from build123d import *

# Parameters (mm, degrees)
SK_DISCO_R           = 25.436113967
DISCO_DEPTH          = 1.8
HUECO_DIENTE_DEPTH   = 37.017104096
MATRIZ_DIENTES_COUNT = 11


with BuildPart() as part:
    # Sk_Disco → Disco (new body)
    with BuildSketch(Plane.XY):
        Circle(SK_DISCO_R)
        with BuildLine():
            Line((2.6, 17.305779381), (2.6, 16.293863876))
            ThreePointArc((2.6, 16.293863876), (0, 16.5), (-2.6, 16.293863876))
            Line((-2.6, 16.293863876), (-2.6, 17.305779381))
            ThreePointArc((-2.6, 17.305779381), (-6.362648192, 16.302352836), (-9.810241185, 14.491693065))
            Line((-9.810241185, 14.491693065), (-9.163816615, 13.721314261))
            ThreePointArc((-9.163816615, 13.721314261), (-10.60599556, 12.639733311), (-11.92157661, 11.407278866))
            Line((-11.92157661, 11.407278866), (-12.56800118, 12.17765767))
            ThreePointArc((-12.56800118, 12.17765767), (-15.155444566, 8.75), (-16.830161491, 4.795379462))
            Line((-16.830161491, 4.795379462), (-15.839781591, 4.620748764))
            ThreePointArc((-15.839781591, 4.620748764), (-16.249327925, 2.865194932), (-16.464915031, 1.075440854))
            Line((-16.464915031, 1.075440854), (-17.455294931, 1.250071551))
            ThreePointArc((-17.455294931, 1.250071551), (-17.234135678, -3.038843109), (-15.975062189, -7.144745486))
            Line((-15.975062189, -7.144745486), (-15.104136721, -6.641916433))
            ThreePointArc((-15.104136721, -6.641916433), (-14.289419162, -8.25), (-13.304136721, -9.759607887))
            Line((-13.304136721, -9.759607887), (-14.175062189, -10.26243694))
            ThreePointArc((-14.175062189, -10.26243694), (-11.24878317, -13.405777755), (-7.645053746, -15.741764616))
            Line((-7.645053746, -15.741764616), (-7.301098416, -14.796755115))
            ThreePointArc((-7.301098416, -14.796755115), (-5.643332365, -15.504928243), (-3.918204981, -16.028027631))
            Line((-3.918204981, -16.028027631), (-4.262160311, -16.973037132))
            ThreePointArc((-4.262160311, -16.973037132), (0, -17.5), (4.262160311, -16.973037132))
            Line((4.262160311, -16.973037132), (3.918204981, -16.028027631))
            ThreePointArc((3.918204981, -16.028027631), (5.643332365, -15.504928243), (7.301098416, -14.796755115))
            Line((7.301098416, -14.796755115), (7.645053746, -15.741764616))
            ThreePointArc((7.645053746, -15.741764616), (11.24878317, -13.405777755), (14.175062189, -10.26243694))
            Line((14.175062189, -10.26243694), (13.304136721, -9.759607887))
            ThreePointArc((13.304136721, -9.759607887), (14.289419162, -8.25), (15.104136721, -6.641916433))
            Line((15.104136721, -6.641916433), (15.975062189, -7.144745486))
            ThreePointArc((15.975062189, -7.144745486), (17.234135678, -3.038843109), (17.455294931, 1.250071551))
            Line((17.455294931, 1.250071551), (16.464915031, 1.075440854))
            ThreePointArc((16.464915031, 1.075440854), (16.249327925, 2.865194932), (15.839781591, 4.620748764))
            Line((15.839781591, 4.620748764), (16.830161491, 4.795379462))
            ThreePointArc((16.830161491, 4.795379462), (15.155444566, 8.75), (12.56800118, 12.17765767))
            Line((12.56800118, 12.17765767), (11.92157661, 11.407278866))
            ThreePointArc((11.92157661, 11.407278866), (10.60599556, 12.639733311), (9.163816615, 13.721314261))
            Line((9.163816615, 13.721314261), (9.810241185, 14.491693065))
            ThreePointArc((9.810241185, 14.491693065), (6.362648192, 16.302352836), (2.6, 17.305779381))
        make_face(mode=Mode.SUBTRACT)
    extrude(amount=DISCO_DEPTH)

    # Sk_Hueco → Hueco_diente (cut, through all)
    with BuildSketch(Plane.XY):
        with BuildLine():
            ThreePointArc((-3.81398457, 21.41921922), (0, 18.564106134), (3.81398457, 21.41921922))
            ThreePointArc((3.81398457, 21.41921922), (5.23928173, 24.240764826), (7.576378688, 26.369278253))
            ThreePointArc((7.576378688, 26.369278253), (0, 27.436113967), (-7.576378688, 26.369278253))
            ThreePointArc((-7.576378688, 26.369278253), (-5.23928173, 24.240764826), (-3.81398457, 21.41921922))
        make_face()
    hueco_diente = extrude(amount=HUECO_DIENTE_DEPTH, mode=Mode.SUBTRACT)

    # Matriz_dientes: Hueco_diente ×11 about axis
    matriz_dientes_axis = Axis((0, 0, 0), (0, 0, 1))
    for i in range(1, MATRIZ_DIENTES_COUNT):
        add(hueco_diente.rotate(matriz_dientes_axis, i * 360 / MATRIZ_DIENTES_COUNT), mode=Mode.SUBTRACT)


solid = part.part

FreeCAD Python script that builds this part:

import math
import FreeCAD as App
import Part
import Sketcher

V = App.Vector
Q = App.Units.Quantity

doc = App.newDocument("Part")
params = doc.addObject("Spreadsheet::Sheet", "Params")
for row, (alias, value) in enumerate([
    ("sketch1_radius", "17.5 mm"),
    ("sketch1_radius2", "16.5 mm"),
    ("pad1_length", "1.8 mm"),
], start=1):
    params.set(f"A{row}", alias)
    params.set(f"B{row}", "=" + value)
    params.setAlias(f"B{row}", alias)

body = doc.addObject("PartDesign::Body", "Body")

# Sketch on XY plane
sketch1 = body.newObject("Sketcher::SketchObject", "Sketch")
sketch1.AttachmentSupport = (doc.getObject("XY_Plane"), [""])
sketch1.MapMode = "FlatFace"
sketch1.addGeometry(Part.Circle(V(0, 0, 0), V(0, 0, 1), 25.4), False)
sketch1.addGeometry(Part.LineSegment(V(2.6, 16.3, 0), V(2.6, 17.3, 0)), False)
sketch1.addGeometry(Part.ArcOfCircle(Part.Circle(V(0, 0, 0), V(0, 0, 1), 17.5), math.radians(56), math.radians(81)), False)
sketch1.addGeometry(Part.LineSegment(V(9.8, 14.5, 0), V(9.2, 13.7, 0)), False)
sketch1.addGeometry(Part.ArcOfCircle(Part.Circle(V(0, 0, 0), V(0, 0, 1), 16.5), math.radians(43.74), math.radians(56.26)), False)
sketch1.addGeometry(Part.LineSegment(V(11.9, 11.4, 0), V(12.6, 12.2, 0)), False)
sketch1.addGeometry(Part.ArcOfCircle(Part.Circle(V(0, 0, 0), V(0, 0, 1), 17.5), math.radians(16), math.radians(44)), False)
sketch1.addGeometry(Part.LineSegment(V(16.8, 4.8, 0), V(15.8, 4.6, 0)), False)
sketch1.addGeometry(Part.ArcOfCircle(Part.Circle(V(0, 0, 0), V(0, 0, 1), 16.5), math.radians(3.74), math.radians(16.26)), False)
sketch1.addGeometry(Part.LineSegment(V(16.5, 1.1, 0), V(17.5, 1.3, 0)), False)
sketch1.addGeometry(Part.ArcOfCircle(Part.Circle(V(0, 0, 0), V(0, 0, 1), 17.5), math.radians(-24), math.radians(4)), False)
sketch1.addGeometry(Part.LineSegment(V(16, -7.1, 0), V(15.1, -6.6, 0)), False)
sketch1.addGeometry(Part.ArcOfCircle(Part.Circle(V(0, 0, 0), V(0, 0, 1), 16.5), math.radians(-36.26), math.radians(-23.74)), False)
sketch1.addGeometry(Part.LineSegment(V(13.3, -9.8, 0), V(14.2, -10.3, 0)), False)
sketch1.addGeometry(Part.ArcOfCircle(Part.Circle(V(0, 0, 0), V(0, 0, 1), 17.5), math.radians(-64), math.radians(-36)), False)
sketch1.addGeometry(Part.LineSegment(V(7.6, -15.7, 0), V(7.3, -14.8, 0)), False)
sketch1.addGeometry(Part.ArcOfCircle(Part.Circle(V(0, 0, 0), V(0, 0, 1), 16.5), math.radians(-76.26), math.radians(-63.74)), False)
sketch1.addGeometry(Part.LineSegment(V(3.9, -16, 0), V(4.3, -17, 0)), False)
sketch1.addGeometry(Part.ArcOfCircle(Part.Circle(V(0, 0, 0), V(0, 0, 1), 17.5), math.radians(-104), math.radians(-76)), False)
sketch1.addGeometry(Part.LineSegment(V(-4.3, -17, 0), V(-3.9, -16, 0)), False)
sketch1.addGeometry(Part.ArcOfCircle(Part.Circle(V(0, 0, 0), V(0, 0, 1), 16.5), math.radians(-116.26), math.radians(-103.74)), False)
sketch1.addGeometry(Part.LineSegment(V(-7.3, -14.8, 0), V(-7.6, -15.7, 0)), False)
sketch1.addGeometry(Part.ArcOfCircle(Part.Circle(V(0, 0, 0), V(0, 0, 1), 17.5), math.radians(-144), math.radians(-116)), False)
sketch1.addGeometry(Part.LineSegment(V(-14.2, -10.3, 0), V(-13.3, -9.8, 0)), False)
sketch1.addGeometry(Part.ArcOfCircle(Part.Circle(V(0, 0, 0), V(0, 0, 1), 16.5), math.radians(-156.26), math.radians(-143.74)), False)
sketch1.addGeometry(Part.LineSegment(V(-15.1, -6.6, 0), V(-16, -7.1, 0)), False)
sketch1.addGeometry(Part.ArcOfCircle(Part.Circle(V(0, 0, 0), V(0, 0, 1), 17.5), math.radians(176), math.radians(204)), False)
sketch1.addGeometry(Part.LineSegment(V(-17.5, 1.3, 0), V(-16.5, 1.1, 0)), False)
sketch1.addGeometry(Part.ArcOfCircle(Part.Circle(V(0, 0, 0), V(0, 0, 1), 16.5), math.radians(163.74), math.radians(176.26)), False)
sketch1.addGeometry(Part.LineSegment(V(-15.8, 4.6, 0), V(-16.8, 4.8, 0)), False)
sketch1.addGeometry(Part.ArcOfCircle(Part.Circle(V(0, 0, 0), V(0, 0, 1), 17.5), math.radians(136), math.radians(164)), False)
sketch1.addGeometry(Part.LineSegment(V(-12.6, 12.2, 0), V(-11.9, 11.4, 0)), False)
sketch1.addGeometry(Part.ArcOfCircle(Part.Circle(V(0, 0, 0), V(0, 0, 1), 16.5), math.radians(123.74), math.radians(136.26)), False)
sketch1.addGeometry(Part.LineSegment(V(-9.2, 13.7, 0), V(-9.8, 14.5, 0)), False)
sketch1.addGeometry(Part.ArcOfCircle(Part.Circle(V(0, 0, 0), V(0, 0, 1), 17.5), math.radians(99), math.radians(124)), False)
sketch1.addGeometry(Part.LineSegment(V(-2.6, 17.3, 0), V(-2.6, 16.3, 0)), False)
sketch1.addGeometry(Part.ArcOfCircle(Part.Circle(V(0, 0, 0), V(0, 0, 1), 16.5), math.radians(80.93), math.radians(99.07)), False)
sketch1.addConstraint(Sketcher.Constraint("Coincident", 1, 2, 2, 2))
sketch1.addConstraint(Sketcher.Constraint("Coincident", 2, 1, 3, 1))
sketch1.addConstraint(Sketcher.Constraint("Coincident", 3, 2, 4, 2))
sketch1.addConstraint(Sketcher.Constraint("Coincident", 4, 1, 5, 1))
sketch1.addConstraint(Sketcher.Constraint("Coincident", 5, 2, 6, 2))
sketch1.addConstraint(Sketcher.Constraint("Coincident", 6, 1, 7, 1))
sketch1.addConstraint(Sketcher.Constraint("Coincident", 7, 2, 8, 2))
sketch1.addConstraint(Sketcher.Constraint("Coincident", 8, 1, 9, 1))
sketch1.addConstraint(Sketcher.Constraint("Coincident", 9, 2, 10, 2))
sketch1.addConstraint(Sketcher.Constraint("Coincident", 10, 1, 11, 1))
sketch1.addConstraint(Sketcher.Constraint("Coincident", 11, 2, 12, 2))
sketch1.addConstraint(Sketcher.Constraint("Coincident", 12, 1, 13, 1))
sketch1.addConstraint(Sketcher.Constraint("Coincident", 13, 2, 14, 2))
sketch1.addConstraint(Sketcher.Constraint("Coincident", 14, 1, 15, 1))
sketch1.addConstraint(Sketcher.Constraint("Coincident", 15, 2, 16, 2))
sketch1.addConstraint(Sketcher.Constraint("Coincident", 16, 1, 17, 1))
sketch1.addConstraint(Sketcher.Constraint("Coincident", 17, 2, 18, 2))
sketch1.addConstraint(Sketcher.Constraint("Coincident", 18, 1, 19, 1))
sketch1.addConstraint(Sketcher.Constraint("Coincident", 19, 2, 20, 2))
sketch1.addConstraint(Sketcher.Constraint("Coincident", 20, 1, 21, 1))
sketch1.addConstraint(Sketcher.Constraint("Coincident", 21, 2, 22, 2))
sketch1.addConstraint(Sketcher.Constraint("Coincident", 22, 1, 23, 1))
sketch1.addConstraint(Sketcher.Constraint("Coincident", 23, 2, 24, 2))
sketch1.addConstraint(Sketcher.Constraint("Coincident", 24, 1, 25, 1))
sketch1.addConstraint(Sketcher.Constraint("Coincident", 25, 2, 26, 2))
sketch1.addConstraint(Sketcher.Constraint("Coincident", 26, 1, 27, 1))
sketch1.addConstraint(Sketcher.Constraint("Coincident", 27, 2, 28, 2))
sketch1.addConstraint(Sketcher.Constraint("Coincident", 28, 1, 29, 1))
sketch1.addConstraint(Sketcher.Constraint("Coincident", 29, 2, 30, 2))
sketch1.addConstraint(Sketcher.Constraint("Coincident", 30, 1, 31, 1))
sketch1.addConstraint(Sketcher.Constraint("Coincident", 31, 2, 32, 2))
sketch1.addConstraint(Sketcher.Constraint("Coincident", 32, 1, 33, 1))
sketch1.addConstraint(Sketcher.Constraint("Coincident", 33, 2, 34, 2))
sketch1.addConstraint(Sketcher.Constraint("Coincident", 34, 1, 35, 1))
sketch1.addConstraint(Sketcher.Constraint("Coincident", 35, 2, 36, 2))
sketch1.addConstraint(Sketcher.Constraint("Coincident", 36, 1, 1, 1))
sketch1.addConstraint(Sketcher.Constraint("Vertical", 1))
sketch1.addConstraint(Sketcher.Constraint("Vertical", 35))
sketch1.addConstraint(Sketcher.Constraint("Coincident", 0, 3, -1, 1))
sketch1.addConstraint(Sketcher.Constraint("Coincident", 2, 3, -1, 1))
sketch1.addConstraint(Sketcher.Constraint("Coincident", 4, 3, -1, 1))
sketch1.addConstraint(Sketcher.Constraint("Coincident", 6, 3, -1, 1))
sketch1.addConstraint(Sketcher.Constraint("Coincident", 8, 3, -1, 1))
sketch1.addConstraint(Sketcher.Constraint("Coincident", 10, 3, -1, 1))
sketch1.addConstraint(Sketcher.Constraint("Coincident", 12, 3, -1, 1))
sketch1.addConstraint(Sketcher.Constraint("Coincident", 14, 3, -1, 1))
sketch1.addConstraint(Sketcher.Constraint("Coincident", 16, 3, -1, 1))
sketch1.addConstraint(Sketcher.Constraint("Coincident", 18, 3, -1, 1))
sketch1.addConstraint(Sketcher.Constraint("Coincident", 20, 3, -1, 1))
sketch1.addConstraint(Sketcher.Constraint("Coincident", 22, 3, -1, 1))
sketch1.addConstraint(Sketcher.Constraint("Coincident", 24, 3, -1, 1))
sketch1.addConstraint(Sketcher.Constraint("Coincident", 26, 3, -1, 1))
sketch1.addConstraint(Sketcher.Constraint("Coincident", 28, 3, -1, 1))
sketch1.addConstraint(Sketcher.Constraint("Coincident", 30, 3, -1, 1))
sketch1.addConstraint(Sketcher.Constraint("Coincident", 32, 3, -1, 1))
sketch1.addConstraint(Sketcher.Constraint("Coincident", 34, 3, -1, 1))
sketch1.addConstraint(Sketcher.Constraint("Coincident", 36, 3, -1, 1))
sketch1.addConstraint(Sketcher.Constraint("Equal", 2, 6))
sketch1.addConstraint(Sketcher.Constraint("Equal", 4, 8))
sketch1.addConstraint(Sketcher.Constraint("Equal", 6, 10))
sketch1.addConstraint(Sketcher.Constraint("Equal", 8, 12))
sketch1.addConstraint(Sketcher.Constraint("Equal", 10, 14))
sketch1.addConstraint(Sketcher.Constraint("Equal", 12, 16))
sketch1.addConstraint(Sketcher.Constraint("Equal", 14, 18))
sketch1.addConstraint(Sketcher.Constraint("Equal", 16, 20))
sketch1.addConstraint(Sketcher.Constraint("Equal", 18, 22))
sketch1.addConstraint(Sketcher.Constraint("Equal", 20, 24))
sketch1.addConstraint(Sketcher.Constraint("Equal", 22, 26))
sketch1.addConstraint(Sketcher.Constraint("Equal", 24, 28))
sketch1.addConstraint(Sketcher.Constraint("Equal", 26, 30))
sketch1.addConstraint(Sketcher.Constraint("Equal", 28, 32))
sketch1.addConstraint(Sketcher.Constraint("Equal", 30, 34))
sketch1.addConstraint(Sketcher.Constraint("Equal", 32, 36))
sketch1.addConstraint(Sketcher.Constraint("Parallel", 3, 5))
sketch1.addConstraint(Sketcher.Constraint("Parallel", 7, 9))
sketch1.addConstraint(Sketcher.Constraint("Parallel", 11, 13))
sketch1.addConstraint(Sketcher.Constraint("Parallel", 15, 17))
sketch1.addConstraint(Sketcher.Constraint("Parallel", 19, 21))
sketch1.addConstraint(Sketcher.Constraint("Parallel", 23, 25))
sketch1.addConstraint(Sketcher.Constraint("Parallel", 27, 29))
sketch1.addConstraint(Sketcher.Constraint("Parallel", 31, 33))
sketch1.addConstraint(Sketcher.Constraint("Horizontal", 17, 2, 18, 1))
sketch1.addConstraint(Sketcher.Constraint("Horizontal", 16, 1, 19, 2))
sketch1.addConstraint(Sketcher.Constraint("Horizontal", 15, 2, 20, 1))
sketch1.addConstraint(Sketcher.Constraint("Horizontal", 13, 2, 22, 1))
sketch1.addConstraint(Sketcher.Constraint("Horizontal", 12, 1, 23, 2))
sketch1.addConstraint(Sketcher.Constraint("Horizontal", 11, 2, 24, 1))
sketch1.addConstraint(Sketcher.Constraint("Horizontal", 9, 2, 26, 1))
sketch1.addConstraint(Sketcher.Constraint("Horizontal", 8, 1, 27, 2))
sketch1.addConstraint(Sketcher.Constraint("Horizontal", 7, 2, 28, 1))
sketch1.addConstraint(Sketcher.Constraint("Horizontal", 5, 2, 30, 1))
sketch1.addConstraint(Sketcher.Constraint("Horizontal", 4, 1, 31, 2))
sketch1.addConstraint(Sketcher.Constraint("Horizontal", 3, 2, 32, 1))
sketch1.addConstraint(Sketcher.Constraint("Horizontal", 1, 2, 34, 1))
sketch1.addConstraint(Sketcher.Constraint("Equal", 3, 5))
sketch1.addConstraint(Sketcher.Constraint("Equal", 5, 7))
sketch1.addConstraint(Sketcher.Constraint("Equal", 7, 9))
sketch1.addConstraint(Sketcher.Constraint("Equal", 9, 11))
sketch1.addConstraint(Sketcher.Constraint("Equal", 11, 13))
sketch1.addConstraint(Sketcher.Constraint("Equal", 13, 15))
sketch1.addConstraint(Sketcher.Constraint("Equal", 15, 17))
sketch1.addConstraint(Sketcher.Constraint("Radius", 2, 17.5))
sketch1.addConstraint(Sketcher.Constraint("Radius", 4, 16.5))
sketch1.addConstraint(Sketcher.Constraint("Angle", 3, Q("-130 deg")))
sketch1.addConstraint(Sketcher.Constraint("Angle", 7, Q("-170 deg")))
sketch1.addConstraint(Sketcher.Constraint("Angle", 11, Q("150 deg")))
sketch1.addConstraint(Sketcher.Constraint("Angle", 15, Q("110 deg")))
sketch1.addConstraint(Sketcher.Constraint("DistanceX", -1, 1, 1, 2, 2.6))
sketch1.addConstraint(Sketcher.Constraint("DistanceX", 12, 1, 11, 2, 1.8))
sketch1.addConstraint(Sketcher.Constraint("Diameter", 0, 50.872228))
sketch1.setExpression("Constraints[101]", "Params.sketch1_radius")
sketch1.setExpression("Constraints[102]", "Params.sketch1_radius2")
pad1 = body.newObject("PartDesign::Pad", "Pad")
pad1.Profile = sketch1
pad1.setExpression("Length", "Params.pad1_length")

# Sketch on XY plane
sketch2 = body.newObject("Sketcher::SketchObject", "Sketch001")
sketch2.AttachmentSupport = (doc.getObject("XY_Plane"), [""])
sketch2.MapMode = "FlatFace"
sketch2.addGeometry(Part.ArcOfCircle(Part.Circle(V(0, 22.5, 0), V(0, 0, 1), 4), math.radians(-164), math.radians(-16)), False)
sketch2.addGeometry(Part.ArcOfCircle(Part.Circle(V(12.2, 19, 0), V(0, 0, 1), 8.7), math.radians(122), math.radians(164)), False)
sketch2.addGeometry(Part.ArcOfCircle(Part.Circle(V(0, 0, 0), V(0, 0, 1), 27.4), math.radians(74), math.radians(106)), False)
sketch2.addGeometry(Part.ArcOfCircle(Part.Circle(V(-12.2, 19, 0), V(0, 0, 1), 8.7), math.radians(16), math.radians(58)), False)
sketch2.addConstraint(Sketcher.Constraint("Tangent", 0, 2, 1, 2))
sketch2.addConstraint(Sketcher.Constraint("Coincident", 1, 1, 2, 1))
sketch2.addConstraint(Sketcher.Constraint("Coincident", 2, 2, 3, 2))
sketch2.addConstraint(Sketcher.Constraint("Tangent", 3, 1, 0, 1))
sketch2.addConstraint(Sketcher.Constraint("Coincident", 2, 3, -1, 1))
sketch2.addConstraint(Sketcher.Constraint("Equal", 1, 3))
sketch2.addConstraint(Sketcher.Constraint("Symmetric", 1, 3, 3, 3, -2))
sketch2.addConstraint(Sketcher.Constraint("Radius", 0, 3.975))
sketch2.addConstraint(Sketcher.Constraint("Radius", 1, 8.725))
sketch2.addConstraint(Sketcher.Constraint("Radius", 2, 27.436114))
sketch2.addConstraint(Sketcher.Constraint("DistanceX", -1, 1, 1, 3, 12.185561))
sketch2.addConstraint(Sketcher.Constraint("DistanceY", -1, 1, 0, 2, 21.419219))
pocket1 = body.newObject("PartDesign::Pocket", "Pocket")
pocket1.Profile = sketch2
pocket1.Type = "ThroughAll"
pocket1.Reversed = True
doc.recompute()

polarpattern = body.newObject("PartDesign::PolarPattern", "PolarPattern")
polarpattern.Originals = [pocket1]
polarpattern.Axis = (doc.getObject("Z_Axis"), [""])
polarpattern.Angle = 360
polarpattern.Occurrences = 11
body.Tip = polarpattern

doc.recompute()
